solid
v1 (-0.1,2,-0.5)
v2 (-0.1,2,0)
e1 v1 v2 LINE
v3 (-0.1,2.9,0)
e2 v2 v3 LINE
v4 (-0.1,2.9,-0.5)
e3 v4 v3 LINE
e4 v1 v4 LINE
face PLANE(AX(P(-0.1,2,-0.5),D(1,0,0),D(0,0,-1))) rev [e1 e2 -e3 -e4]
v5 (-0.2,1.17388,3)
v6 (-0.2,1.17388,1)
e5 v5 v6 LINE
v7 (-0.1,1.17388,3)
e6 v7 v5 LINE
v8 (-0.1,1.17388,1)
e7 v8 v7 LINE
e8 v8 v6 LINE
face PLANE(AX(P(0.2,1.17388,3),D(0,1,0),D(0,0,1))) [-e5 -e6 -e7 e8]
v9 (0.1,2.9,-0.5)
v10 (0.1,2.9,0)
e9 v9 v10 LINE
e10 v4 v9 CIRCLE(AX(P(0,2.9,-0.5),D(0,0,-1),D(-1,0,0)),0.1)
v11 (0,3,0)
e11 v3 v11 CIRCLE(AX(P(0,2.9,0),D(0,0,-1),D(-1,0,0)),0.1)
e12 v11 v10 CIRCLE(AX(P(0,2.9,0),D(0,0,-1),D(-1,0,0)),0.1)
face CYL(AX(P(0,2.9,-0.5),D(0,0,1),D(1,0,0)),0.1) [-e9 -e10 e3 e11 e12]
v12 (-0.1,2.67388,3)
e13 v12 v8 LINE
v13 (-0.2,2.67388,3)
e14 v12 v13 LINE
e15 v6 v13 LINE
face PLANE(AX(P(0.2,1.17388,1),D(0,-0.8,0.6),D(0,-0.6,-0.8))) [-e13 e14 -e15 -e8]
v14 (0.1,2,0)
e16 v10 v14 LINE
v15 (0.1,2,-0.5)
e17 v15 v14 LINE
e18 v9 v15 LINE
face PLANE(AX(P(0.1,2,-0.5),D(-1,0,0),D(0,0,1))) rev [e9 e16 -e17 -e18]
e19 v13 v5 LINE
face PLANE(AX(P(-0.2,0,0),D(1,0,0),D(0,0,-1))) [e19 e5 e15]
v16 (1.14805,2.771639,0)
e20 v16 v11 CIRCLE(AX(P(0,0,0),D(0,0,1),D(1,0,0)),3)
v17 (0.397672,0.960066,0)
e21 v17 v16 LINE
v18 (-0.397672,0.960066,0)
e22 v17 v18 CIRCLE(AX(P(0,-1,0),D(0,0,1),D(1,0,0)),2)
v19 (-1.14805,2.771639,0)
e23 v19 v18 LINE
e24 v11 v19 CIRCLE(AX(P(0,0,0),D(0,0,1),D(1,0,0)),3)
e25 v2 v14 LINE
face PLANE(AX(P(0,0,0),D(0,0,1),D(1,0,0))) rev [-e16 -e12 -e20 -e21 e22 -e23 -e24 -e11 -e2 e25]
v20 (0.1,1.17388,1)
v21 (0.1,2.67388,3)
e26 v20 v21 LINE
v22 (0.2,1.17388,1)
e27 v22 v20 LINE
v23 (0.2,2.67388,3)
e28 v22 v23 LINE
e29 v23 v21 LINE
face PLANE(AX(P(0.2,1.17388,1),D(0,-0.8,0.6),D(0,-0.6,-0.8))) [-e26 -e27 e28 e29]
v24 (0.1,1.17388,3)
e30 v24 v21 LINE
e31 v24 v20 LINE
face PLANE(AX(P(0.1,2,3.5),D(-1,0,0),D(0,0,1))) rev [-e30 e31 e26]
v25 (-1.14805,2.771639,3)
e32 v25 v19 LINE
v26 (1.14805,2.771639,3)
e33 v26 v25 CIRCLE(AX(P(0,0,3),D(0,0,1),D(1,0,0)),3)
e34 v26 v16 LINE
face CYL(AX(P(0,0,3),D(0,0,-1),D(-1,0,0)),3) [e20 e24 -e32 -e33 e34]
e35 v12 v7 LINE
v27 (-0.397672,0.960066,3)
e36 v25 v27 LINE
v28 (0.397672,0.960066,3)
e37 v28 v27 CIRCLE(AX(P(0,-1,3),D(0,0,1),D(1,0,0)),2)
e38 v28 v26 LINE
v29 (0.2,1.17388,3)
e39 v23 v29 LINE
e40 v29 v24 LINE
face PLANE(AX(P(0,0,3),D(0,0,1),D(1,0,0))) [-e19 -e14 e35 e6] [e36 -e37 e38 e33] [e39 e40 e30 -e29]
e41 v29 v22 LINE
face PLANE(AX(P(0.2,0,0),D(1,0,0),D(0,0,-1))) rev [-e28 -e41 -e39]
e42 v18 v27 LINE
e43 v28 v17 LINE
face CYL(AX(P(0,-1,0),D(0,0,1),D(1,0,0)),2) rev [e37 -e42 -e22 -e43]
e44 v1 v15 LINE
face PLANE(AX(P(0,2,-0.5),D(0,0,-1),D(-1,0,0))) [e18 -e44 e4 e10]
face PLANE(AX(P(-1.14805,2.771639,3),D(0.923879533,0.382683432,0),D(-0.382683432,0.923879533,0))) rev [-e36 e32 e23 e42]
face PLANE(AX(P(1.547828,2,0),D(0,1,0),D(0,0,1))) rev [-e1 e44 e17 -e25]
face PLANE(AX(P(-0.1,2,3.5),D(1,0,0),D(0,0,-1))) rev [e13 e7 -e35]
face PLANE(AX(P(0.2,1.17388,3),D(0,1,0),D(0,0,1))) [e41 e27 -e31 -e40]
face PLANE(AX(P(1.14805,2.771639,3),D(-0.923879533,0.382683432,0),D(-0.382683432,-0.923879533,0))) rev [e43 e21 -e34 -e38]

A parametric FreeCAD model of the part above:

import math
import FreeCAD as App
import Part
import Sketcher
from FreeCAD import Vector
Q = App.Units.Quantity

doc = App.newDocument("Part")
params = doc.addObject("Spreadsheet::Sheet", "Params")
for row, (alias, value) in enumerate([
    ("sketch1_radius", "3 mm"),
    ("sketch1_radius2", "1 mm"),
    ("pad1_length", "3 mm"),
    ("sketch2_radius", "0.1 mm"),
    ("sketch2_height", "0.9 mm"),
    ("pad2_length", "0.5 mm"),
    ("sketch3_height", "2 mm"),
    ("sketch3_width", "1.5 mm"),
    ("pocket1_length", "0.1 mm"),
    ("pocket1_length2", "0.3 mm"),
    ("sketch4_width", "0.2 mm"),
    ("sketch4_height", "1.5 mm"),
    ("pad3_length", "3 mm"),
    ("sketch5_radius", "0.1 mm"),
    ("sketch5_height", "0.9 mm"),
    ("pad4_length", "0.5 mm"),
    ("sketch6_diameter", "4 mm"),
    ("pocket2_length", "3 mm"),
    ("pocket3_length", "0.5 mm"),
    ("pocket4_length", "0.5 mm"),
    ("pocket5_length", "2 mm"),
], start=1):
    params.set(f"A{row}", alias)
    params.set(f"B{row}", "=" + value)
    params.setAlias(f"B{row}", alias)

body = doc.addObject("PartDesign::Body", "Body")

sketch1 = doc.addObject("Sketcher::SketchObject", "Sketch")
body.addObject(sketch1)
sketch1.AttachmentSupport = (doc.XY_Plane, [""])
sketch1.MapMode = "FlatFace"
sketch1.addGeometry(Part.LineSegment(Vector(0.4, 0.9, 0), Vector(1.1, 2.8, 0)), False)
sketch1.addGeometry(Part.ArcOfCircle(Part.Circle(Vector(0, 0, 0), Vector(0, 0, 1), 3), math.radians(68), math.radians(112)), False)
sketch1.addGeometry(Part.LineSegment(Vector(-1.1, 2.8, 0), Vector(-0.4, 0.9, 0)), False)
sketch1.addGeometry(Part.ArcOfCircle(Part.Circle(Vector(0, 0, 0), Vector(0, 0, 1), 1), math.radians(68), math.radians(112)), False)
sketch1.addConstraint(Sketcher.Constraint("Coincident", 0, 2, 1, 1))
sketch1.addConstraint(Sketcher.Constraint("Coincident", 1, 2, 2, 1))
sketch1.addConstraint(Sketcher.Constraint("Coincident", 2, 2, 3, 2))
sketch1.addConstraint(Sketcher.Constraint("Coincident", 3, 1, 0, 1))
sketch1.addConstraint(Sketcher.Constraint("Coincident", 1, 3, -1, 1))
sketch1.addConstraint(Sketcher.Constraint("Coincident", 3, 3, -1, 1))
sketch1.addConstraint(Sketcher.Constraint("Horizontal", 0, 2, 1, 2))
sketch1.addConstraint(Sketcher.Constraint("Horizontal", 2, 2, 3, 1))
sketch1.addConstraint(Sketcher.Constraint("Radius", 1, Q("3 mm")))
sketch1.addConstraint(Sketcher.Constraint("Radius", 3, Q("1 mm")))
sketch1.addConstraint(Sketcher.Constraint("Angle", 0, Q("67.5 deg")))
sketch1.addConstraint(Sketcher.Constraint("DistanceX", 1, 2, 0, 2, Q("2.296101 mm")))
sketch1.setExpression("Constraints[8]", "Params.sketch1_radius")
sketch1.setExpression("Constraints[9]", "Params.sketch1_radius2")
pad1 = doc.addObject("PartDesign::Pad", "Pad")
body.addObject(pad1)
pad1.Profile = sketch1
pad1.setExpression("Length", "Params.pad1_length")

sketch2 = doc.addObject("Sketcher::SketchObject", "Sketch001")
body.addObject(sketch2)
sketch2.AttachmentSupport = (doc.XY_Plane, [""])
sketch2.MapMode = "FlatFace"
sketch2.AttachmentOffset = App.Placement(Vector(0, 0, 3), App.Rotation())
sketch2.addGeometry(Part.LineSegment(Vector(-0.1, 2.9, 0), Vector(-0.1, 2, 0)), False)
sketch2.addGeometry(Part.ArcOfCircle(Part.Circle(Vector(0, 2, 0), Vector(0, 0, 1), 0.1), math.radians(180), math.radians(360)), False)
sketch2.addGeometry(Part.LineSegment(Vector(0.1, 2, 0), Vector(0.1, 2.9, 0)), False)
sketch2.addGeometry(Part.ArcOfCircle(Part.Circle(Vector(0, 2.9, 0), Vector(0, 0, 1), 0.1), math.radians(0), math.radians(180)), False)
sketch2.addConstraint(Sketcher.Constraint("Tangent", 0, 2, 1, 1))
sketch2.addConstraint(Sketcher.Constraint("Tangent", 1, 2, 2, 1))
sketch2.addConstraint(Sketcher.Constraint("Tangent", 2, 2, 3, 1))
sketch2.addConstraint(Sketcher.Constraint("Tangent", 3, 2, 0, 1))
sketch2.addConstraint(Sketcher.Constraint("Vertical", 0))
sketch2.addConstraint(Sketcher.Constraint("Vertical", 2))
sketch2.addConstraint(Sketcher.Constraint("PointOnObject", 1, 3, -2))
sketch2.addConstraint(Sketcher.Constraint("Radius", 1, Q("0.1 mm")))
sketch2.addConstraint(Sketcher.Constraint("DistanceY", 0, 2, 0, 1, Q("0.9 mm")))
sketch2.addConstraint(Sketcher.Constraint("DistanceY", -1, 1, 1, 3, Q("2 mm")))
sketch2.setExpression("Constraints[7]", "Params.sketch2_radius")
sketch2.setExpression("Constraints[8]", "Params.sketch2_height")
pad2 = doc.addObject("PartDesign::Pad", "Pad001")
body.addObject(pad2)
pad2.Profile = sketch2
pad2.setExpression("Length", "Params.pad2_length")

sketch3 = doc.addObject("Sketcher::SketchObject", "Sketch002")
body.addObject(sketch3)
sketch3.AttachmentSupport = (doc.YZ_Plane, [""])
sketch3.MapMode = "FlatFace"
sketch3.AttachmentOffset = App.Placement(Vector(0, 0, 0.1), App.Rotation())
sketch3.addGeometry(Part.LineSegment(Vector(2.7, 3, 0), Vector(1.2, 3, 0)), False)
sketch3.addGeometry(Part.LineSegment(Vector(1.2, 3, 0), Vector(1.2, 1, 0)), False)
sketch3.addGeometry(Part.LineSegment(Vector(1.2, 1, 0), Vector(2.7, 3, 0)), False)
sketch3.addConstraint(Sketcher.Constraint("Coincident", 0, 2, 1, 1))
sketch3.addConstraint(Sketcher.Constraint("Coincident", 1, 2, 2, 1))
sketch3.addConstraint(Sketcher.Constraint("Coincident", 2, 2, 0, 1))
sketch3.addConstraint(Sketcher.Constraint("Horizontal", 0))
sketch3.addConstraint(Sketcher.Constraint("Vertical", 1))
sketch3.addConstraint(Sketcher.Constraint("DistanceY", 1, 2, 1, 1, Q("2 mm")))
sketch3.addConstraint(Sketcher.Constraint("DistanceX", 0, 2, 0, 1, Q("1.5 mm")))
sketch3.addConstraint(Sketcher.Constraint("DistanceY", -1, 1, 0, 2, Q("3 mm")))
sketch3.addConstraint(Sketcher.Constraint("DistanceX", -1, 1, 0, 2, Q("1.17388 mm")))
sketch3.setExpression("Constraints[5]", "Params.sketch3_height")
sketch3.setExpression("Constraints[6]", "Params.sketch3_width")
pocket1 = doc.addObject("PartDesign::Pocket", "Pocket")
body.addObject(pocket1)
pocket1.Profile = sketch3
pocket1.Type = "TwoLengths"
pocket1.setExpression("Length", "Params.pocket1_length")
pocket1.setExpression("Length2", "Params.pocket1_length2")
pocket1.Reversed = True

sketch4 = doc.addObject("Sketcher::SketchObject", "Sketch003")
body.addObject(sketch4)
sketch4.AttachmentSupport = (doc.XY_Plane, [""])
sketch4.MapMode = "FlatFace"
sketch4.AttachmentOffset = App.Placement(Vector(0, 0, 3), App.Rotation())
sketch4.addGeometry(Part.LineSegment(Vector(-0.1, 2.67, 0), Vector(-0.1, 1.17, 0)), False)
sketch4.addGeometry(Part.LineSegment(Vector(-0.1, 1.17, 0), Vector(0.1, 1.17, 0)), False)
sketch4.addGeometry(Part.LineSegment(Vector(0.1, 1.17, 0), Vector(0.1, 2.67, 0)), False)
sketch4.addGeometry(Part.LineSegment(Vector(0.1, 2.67, 0), Vector(-0.1, 2.67, 0)), False)
sketch4.addConstraint(Sketcher.Constraint("Coincident", 0, 2, 1, 1))
sketch4.addConstraint(Sketcher.Constraint("Coincident", 1, 2, 2, 1))
sketch4.addConstraint(Sketcher.Constraint("Coincident", 2, 2, 3, 1))
sketch4.addConstraint(Sketcher.Constraint("Coincident", 3, 2, 0, 1))
sketch4.addConstraint(Sketcher.Constraint("Vertical", 0))
sketch4.addConstraint(Sketcher.Constraint("Horizontal", 1))
sketch4.addConstraint(Sketcher.Constraint("Vertical", 2))
sketch4.addConstraint(Sketcher.Constraint("Horizontal", 3))
sketch4.addConstraint(Sketcher.Constraint("DistanceX", 1, 1, 1, 2, Q("0.2 mm")))
sketch4.addConstraint(Sketcher.Constraint("DistanceY", 0, 2, 0, 1, Q("1.5 mm")))
sketch4.addConstraint(Sketcher.Constraint("DistanceX", 0, 2, -1, 1, Q("0.1 mm")))
sketch4.addConstraint(Sketcher.Constraint("DistanceY", -1, 1, 0, 2, Q("1.17388 mm")))
sketch4.setExpression("Constraints[8]", "Params.sketch4_width")
sketch4.setExpression("Constraints[9]", "Params.sketch4_height")
pad3 = doc.addObject("PartDesign::Pad", "Pad002")
body.addObject(pad3)
pad3.Profile = sketch4
pad3.setExpression("Length", "Params.pad3_length")
pad3.Reversed = True

sketch5 = doc.addObject("Sketcher::SketchObject", "Sketch004")
body.addObject(sketch5)
sketch5.AttachmentSupport = (doc.XY_Plane, [""])
sketch5.MapMode = "FlatFace"
sketch5.AttachmentOffset = App.Placement(Vector(0, 0, -0.5), App.Rotation())
sketch5.addGeometry(Part.LineSegment(Vector(0.1, 2.9, 0), Vector(0.1, 2, 0)), False)
sketch5.addGeometry(Part.ArcOfCircle(Part.Circle(Vector(0, 2, 0), Vector(0, 0, 1), 0.1), math.radians(180), math.radians(360)), False)
sketch5.addGeometry(Part.LineSegment(Vector(-0.1, 2, 0), Vector(-0.1, 2.9, 0)), False)
sketch5.addGeometry(Part.ArcOfCircle(Part.Circle(Vector(0, 2.9, 0), Vector(0, 0, 1), 0.1), math.radians(0), math.radians(180)), False)
sketch5.addConstraint(Sketcher.Constraint("Tangent", 0, 2, 1, 2))
sketch5.addConstraint(Sketcher.Constraint("Tangent", 1, 1, 2, 1))
sketch5.addConstraint(Sketcher.Constraint("Tangent", 2, 2, 3, 2))
sketch5.addConstraint(Sketcher.Constraint("Tangent", 3, 1, 0, 1))
sketch5.addConstraint(Sketcher.Constraint("Vertical", 0))
sketch5.addConstraint(Sketcher.Constraint("Vertical", 2))
sketch5.addConstraint(Sketcher.Constraint("PointOnObject", 1, 3, -2))
sketch5.addConstraint(Sketcher.Constraint("Radius", 1, Q("0.1 mm")))
sketch5.addConstraint(Sketcher.Constraint("DistanceY", 0, 2, 0, 1, Q("0.9 mm")))
sketch5.addConstraint(Sketcher.Constraint("DistanceY", -1, 1, 1, 3, Q("2 mm")))
sketch5.setExpression("Constraints[7]", "Params.sketch5_radius")
sketch5.setExpression("Constraints[8]", "Params.sketch5_height")
pad4 = doc.addObject("PartDesign::Pad", "Pad003")
body.addObject(pad4)
pad4.Profile = sketch5
pad4.setExpression("Length", "Params.pad4_length")

sketch6 = doc.addObject("Sketcher::SketchObject", "Sketch005")
body.addObject(sketch6)
sketch6.AttachmentSupport = (doc.XY_Plane, [""])
sketch6.MapMode = "FlatFace"
sketch6.AttachmentOffset = App.Placement(Vector(0, 0, 3), App.Rotation())
sketch6.addGeometry(Part.Circle(Vector(0, -1, 0), Vector(0, 0, 1), 2), False)
sketch6.addConstraint(Sketcher.Constraint("PointOnObject", 0, 3, -2))
sketch6.addConstraint(Sketcher.Constraint("Diameter", 0, Q("4 mm")))
sketch6.addConstraint(Sketcher.Constraint("DistanceY", 0, 3, -1, 1, Q("1 mm")))
sketch6.setExpression("Constraints[1]", "Params.sketch6_diameter")
pocket2 = doc.addObject("PartDesign::Pocket", "Pocket001")
body.addObject(pocket2)
pocket2.Profile = sketch6
pocket2.setExpression("Length", "Params.pocket2_length")

sketch7 = doc.addObject("Sketcher::SketchObject", "Sketch006")
body.addObject(sketch7)
sketch7.AttachmentSupport = (doc.XY_Plane, [""])
sketch7.MapMode = "FlatFace"
sketch7.AttachmentOffset = App.Placement(Vector(0, 0, 3.5), App.Rotation())
sketch7.addGeometry(Part.LineSegment(Vector(-1.3, 2, 0), Vector(-1.3, 0.9, 0)), False)
sketch7.addGeometry(Part.LineSegment(Vector(-1.3, 0.9, 0), Vector(1.5, 0.9, 0)), False)
sketch7.addGeometry(Part.LineSegment(Vector(1.5, 0.9, 0), Vector(1.5, 2, 0)), False)
sketch7.addGeometry(Part.LineSegment(Vector(1.5, 2, 0), Vector(-1.3, 2, 0)), False)
sketch7.addConstraint(Sketcher.Constraint("Coincident", 0, 2, 1, 1))
sketch7.addConstraint(Sketcher.Constraint("Coincident", 1, 2, 2, 1))
sketch7.addConstraint(Sketcher.Constraint("Coincident", 2, 2, 3, 1))
sketch7.addConstraint(Sketcher.Constraint("Coincident", 3, 2, 0, 1))
sketch7.addConstraint(Sketcher.Constraint("Vertical", 0))
sketch7.addConstraint(Sketcher.Constraint("Horizontal", 1))
sketch7.addConstraint(Sketcher.Constraint("Vertical", 2))
sketch7.addConstraint(Sketcher.Constraint("Horizontal", 3))
sketch7.addConstraint(Sketcher.Constraint("DistanceY", -1, 1, 2, 2, Q("2 mm")))
sketch7.addConstraint(Sketcher.Constraint("DistanceX", 1, 1, 1, 2, Q("2.825057 mm")))
sketch7.addConstraint(Sketcher.Constraint("DistanceY", 0, 2, 0, 1, Q("1.139223 mm")))
sketch7.addConstraint(Sketcher.Constraint("DistanceX", 0, 2, -1, 1, Q("1.304289 mm")))
pocket3 = doc.addObject("PartDesign::Pocket", "Pocket002")
body.addObject(pocket3)
pocket3.Profile = sketch7
pocket3.setExpression("Length", "Params.pocket3_length")

sketch8 = doc.addObject("Sketcher::SketchObject", "Sketch007")
body.addObject(sketch8)
sketch8.AttachmentSupport = (doc.XY_Plane, [""])
sketch8.MapMode = "FlatFace"
sketch8.AttachmentOffset = App.Placement(Vector(0, 0, -0.5), App.Rotation())
sketch8.addGeometry(Part.LineSegment(Vector(1.5, 2, 0), Vector(1.5, 0.6, 0)), False)
sketch8.addGeometry(Part.LineSegment(Vector(1.5, 0.6, 0), Vector(-1.4, 0.6, 0)), False)
sketch8.addGeometry(Part.LineSegment(Vector(-1.4, 0.6, 0), Vector(-1.4, 2, 0)), False)
sketch8.addGeometry(Part.LineSegment(Vector(-1.4, 2, 0), Vector(1.5, 2, 0)), False)
sketch8.addConstraint(Sketcher.Constraint("Coincident", 0, 2, 1, 1))
sketch8.addConstraint(Sketcher.Constraint("Coincident", 1, 2, 2, 1))
sketch8.addConstraint(Sketcher.Constraint("Coincident", 2, 2, 3, 1))
sketch8.addConstraint(Sketcher.Constraint("Coincident", 3, 2, 0, 1))
sketch8.addConstraint(Sketcher.Constraint("Vertical", 0))
sketch8.addConstraint(Sketcher.Constraint("Horizontal", 1))
sketch8.addConstraint(Sketcher.Constraint("Vertical", 2))
sketch8.addConstraint(Sketcher.Constraint("Horizontal", 3))
sketch8.addConstraint(Sketcher.Constraint("DistanceY", -1, 1, 2, 2, Q("2 mm")))
sketch8.addConstraint(Sketcher.Constraint("DistanceX", 1, 2, 1, 1, Q("2.979299 mm")))
sketch8.addConstraint(Sketcher.Constraint("DistanceY", 0, 2, 0, 1, Q("1.350291 mm")))
sketch8.addConstraint(Sketcher.Constraint("DistanceX", -1, 1, 0, 2, Q("1.547828 mm")))
pocket4 = doc.addObject("PartDesign::Pocket", "Pocket003")
body.addObject(pocket4)
pocket4.Profile = sketch8
pocket4.setExpression("Length", "Params.pocket4_length")
pocket4.Reversed = True

sketch9 = doc.addObject("Sketcher::SketchObject", "Sketch008")
body.addObject(sketch9)
sketch9.AttachmentSupport = (doc.YZ_Plane, [""])
sketch9.MapMode = "FlatFace"
sketch9.AttachmentOffset = App.Placement(Vector(0, 0, 0.1), App.Rotation())
sketch9.addGeometry(Part.LineSegment(Vector(3.5, 4, 0), Vector(0.7, 4, 0)), False)
sketch9.addGeometry(Part.LineSegment(Vector(0.7, 4, 0), Vector(0.7, 3, 0)), False)
sketch9.addGeometry(Part.LineSegment(Vector(0.7, 3, 0), Vector(3.5, 3, 0)), False)
sketch9.addGeometry(Part.LineSegment(Vector(3.5, 3, 0), Vector(3.5, 4, 0)), False)
sketch9.addConstraint(Sketcher.Constraint("Coincident", 0, 2, 1, 1))
sketch9.addConstraint(Sketcher.Constraint("Coincident", 1, 2, 2, 1))
sketch9.addConstraint(Sketcher.Constraint("Coincident", 2, 2, 3, 1))
sketch9.addConstraint(Sketcher.Constraint("Coincident", 3, 2, 0, 1))
sketch9.addConstraint(Sketcher.Constraint("Horizontal", 0))
sketch9.addConstraint(Sketcher.Constraint("Vertical", 1))
sketch9.addConstraint(Sketcher.Constraint("Horizontal", 2))
sketch9.addConstraint(Sketcher.Constraint("Vertical", 3))
sketch9.addConstraint(Sketcher.Constraint("DistanceY", -1, 1, 1, 2, Q("3 mm")))
sketch9.addConstraint(Sketcher.Constraint("DistanceY", 1, 2, 1, 1, Q("0.979929 mm")))
sketch9.addConstraint(Sketcher.Constraint("DistanceX", 0, 2, 0, 1, Q("2.841385 mm")))
sketch9.addConstraint(Sketcher.Constraint("DistanceX", -1, 1, 2, 2, Q("3.538079 mm")))
pocket5 = doc.addObject("PartDesign::Pocket", "Pocket004")
body.addObject(pocket5)
pocket5.Profile = sketch9
pocket5.setExpression("Length", "Params.pocket5_length")

doc.recompute()
